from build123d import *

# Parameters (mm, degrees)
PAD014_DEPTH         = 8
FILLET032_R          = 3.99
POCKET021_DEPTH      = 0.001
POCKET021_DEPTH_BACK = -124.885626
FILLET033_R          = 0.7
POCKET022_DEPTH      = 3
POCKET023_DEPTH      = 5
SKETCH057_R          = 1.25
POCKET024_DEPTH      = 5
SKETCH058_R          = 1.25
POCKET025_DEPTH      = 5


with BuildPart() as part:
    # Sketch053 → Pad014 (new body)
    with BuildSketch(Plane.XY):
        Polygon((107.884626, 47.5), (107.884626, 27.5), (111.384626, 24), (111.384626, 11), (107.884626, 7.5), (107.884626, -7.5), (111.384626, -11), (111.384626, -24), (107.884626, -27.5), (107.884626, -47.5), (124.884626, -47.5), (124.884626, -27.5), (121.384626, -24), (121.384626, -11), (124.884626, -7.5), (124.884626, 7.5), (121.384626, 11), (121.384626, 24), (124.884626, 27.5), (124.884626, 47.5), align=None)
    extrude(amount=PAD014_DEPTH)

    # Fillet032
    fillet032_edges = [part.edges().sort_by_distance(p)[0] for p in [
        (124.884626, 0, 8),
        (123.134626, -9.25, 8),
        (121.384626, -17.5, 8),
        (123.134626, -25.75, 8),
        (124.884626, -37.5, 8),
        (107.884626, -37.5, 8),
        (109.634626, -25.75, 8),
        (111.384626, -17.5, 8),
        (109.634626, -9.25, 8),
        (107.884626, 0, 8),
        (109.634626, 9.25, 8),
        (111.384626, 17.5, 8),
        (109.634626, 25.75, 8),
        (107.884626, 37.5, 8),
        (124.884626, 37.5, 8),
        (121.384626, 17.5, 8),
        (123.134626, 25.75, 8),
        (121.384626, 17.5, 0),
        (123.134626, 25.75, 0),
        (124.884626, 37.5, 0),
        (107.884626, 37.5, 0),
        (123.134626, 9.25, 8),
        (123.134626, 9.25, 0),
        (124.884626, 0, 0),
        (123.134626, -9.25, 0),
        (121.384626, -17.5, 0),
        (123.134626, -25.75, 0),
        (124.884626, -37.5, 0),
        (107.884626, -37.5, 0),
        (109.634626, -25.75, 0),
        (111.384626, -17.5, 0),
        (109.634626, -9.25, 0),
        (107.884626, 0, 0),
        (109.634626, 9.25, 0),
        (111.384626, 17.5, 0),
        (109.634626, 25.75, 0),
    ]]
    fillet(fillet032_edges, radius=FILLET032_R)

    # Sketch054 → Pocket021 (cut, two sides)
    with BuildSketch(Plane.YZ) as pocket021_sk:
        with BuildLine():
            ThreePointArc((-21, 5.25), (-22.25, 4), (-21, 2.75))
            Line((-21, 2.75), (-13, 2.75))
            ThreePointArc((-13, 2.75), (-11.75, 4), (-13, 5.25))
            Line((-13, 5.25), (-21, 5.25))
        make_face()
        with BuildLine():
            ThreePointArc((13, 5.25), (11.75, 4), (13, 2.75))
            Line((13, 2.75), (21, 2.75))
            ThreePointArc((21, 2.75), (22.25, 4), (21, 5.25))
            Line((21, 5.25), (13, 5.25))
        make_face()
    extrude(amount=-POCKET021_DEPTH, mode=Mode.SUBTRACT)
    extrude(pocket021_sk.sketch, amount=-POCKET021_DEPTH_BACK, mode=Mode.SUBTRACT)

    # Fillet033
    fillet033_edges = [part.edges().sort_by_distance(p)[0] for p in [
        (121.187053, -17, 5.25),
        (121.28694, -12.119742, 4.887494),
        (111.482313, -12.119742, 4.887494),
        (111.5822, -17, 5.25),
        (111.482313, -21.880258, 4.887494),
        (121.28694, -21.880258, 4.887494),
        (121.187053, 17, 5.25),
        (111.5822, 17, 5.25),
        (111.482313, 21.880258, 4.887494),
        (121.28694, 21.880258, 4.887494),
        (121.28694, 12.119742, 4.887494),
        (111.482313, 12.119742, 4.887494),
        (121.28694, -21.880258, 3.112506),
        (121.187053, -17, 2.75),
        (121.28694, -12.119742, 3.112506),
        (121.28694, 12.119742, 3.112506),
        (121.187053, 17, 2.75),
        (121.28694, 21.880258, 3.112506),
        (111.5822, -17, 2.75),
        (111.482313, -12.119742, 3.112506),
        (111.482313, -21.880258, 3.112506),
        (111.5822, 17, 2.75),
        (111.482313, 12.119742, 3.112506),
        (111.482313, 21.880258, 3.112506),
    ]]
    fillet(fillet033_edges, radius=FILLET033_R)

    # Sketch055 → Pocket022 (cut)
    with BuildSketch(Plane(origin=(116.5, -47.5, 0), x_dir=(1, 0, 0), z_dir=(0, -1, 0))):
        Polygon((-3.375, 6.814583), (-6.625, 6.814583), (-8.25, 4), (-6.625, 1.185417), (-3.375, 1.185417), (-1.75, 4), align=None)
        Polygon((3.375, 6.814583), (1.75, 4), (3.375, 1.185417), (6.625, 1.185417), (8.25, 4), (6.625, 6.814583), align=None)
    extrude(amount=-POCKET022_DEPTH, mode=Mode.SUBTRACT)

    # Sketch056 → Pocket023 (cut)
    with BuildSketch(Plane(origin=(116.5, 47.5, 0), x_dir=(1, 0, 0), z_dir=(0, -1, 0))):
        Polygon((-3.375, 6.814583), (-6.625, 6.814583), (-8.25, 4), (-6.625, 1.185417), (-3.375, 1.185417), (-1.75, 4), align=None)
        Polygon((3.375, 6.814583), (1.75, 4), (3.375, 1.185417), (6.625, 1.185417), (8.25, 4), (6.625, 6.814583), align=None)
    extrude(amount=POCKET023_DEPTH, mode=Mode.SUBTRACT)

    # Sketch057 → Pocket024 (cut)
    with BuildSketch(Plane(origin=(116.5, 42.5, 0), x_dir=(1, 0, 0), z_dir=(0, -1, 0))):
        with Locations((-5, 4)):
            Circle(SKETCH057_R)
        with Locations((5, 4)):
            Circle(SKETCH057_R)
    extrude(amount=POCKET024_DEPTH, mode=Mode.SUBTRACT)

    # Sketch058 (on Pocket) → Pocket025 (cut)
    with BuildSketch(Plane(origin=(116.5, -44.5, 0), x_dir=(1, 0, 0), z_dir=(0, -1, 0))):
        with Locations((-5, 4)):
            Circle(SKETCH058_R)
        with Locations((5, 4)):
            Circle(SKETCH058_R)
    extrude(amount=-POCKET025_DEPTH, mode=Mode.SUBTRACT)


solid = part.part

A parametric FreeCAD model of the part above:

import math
import FreeCAD as App
import Part
import Sketcher

V = App.Vector
Q = App.Units.Quantity


def edges_at(feature, points):
    """Names of the edges that pass closest to the given points."""
    edges = feature.Shape.Edges
    near = lambda p: min(range(len(edges)), key=lambda i: edges[i].distToShape(Part.Vertex(*p))[0])
    return sorted({f"Edge{near(p) + 1}" for p in points})


def add_polygon(sketch, points):
    """Adds a closed chain of lines whose ends are joined by coincident constraints."""
    first, n = sketch.GeometryCount, len(points)
    for a, b in zip(points, points[1:] + points[:1]):
        sketch.addGeometry(Part.LineSegment(App.Vector(*a, 0), App.Vector(*b, 0)), False)
    for i in range(n):
        sketch.addConstraint(Sketcher.Constraint("Coincident", first + i, 2, first + (i + 1) % n, 1))

doc = App.newDocument("Part")
body = doc.addObject("PartDesign::Body", "Body")

sketch1 = body.newObject("Sketcher::SketchObject", "Sketch")
sketch1.AttachmentSupport = (doc.getObject("XY_Plane"), [""])
sketch1.MapMode = "FlatFace"
add_polygon(sketch1, [(107.9, 47.5), (107.9, 27.5), (111.4, 24), (111.4, 11), (107.9, 7.5), (107.9, -7.5), (111.4, -11), (111.4, -24), (107.9, -27.5), (107.9, -47.5), (124.9, -47.5), (124.9, -27.5), (121.4, -24), (121.4, -11), (124.9, -7.5), (124.9, 7.5), (121.4, 11), (121.4, 24), (124.9, 27.5), (124.9, 47.5)])
sketch1.addConstraint(Sketcher.Constraint("Vertical", 0))
sketch1.addConstraint(Sketcher.Constraint("Vertical", 2))
sketch1.addConstraint(Sketcher.Constraint("Vertical", 4))
sketch1.addConstraint(Sketcher.Constraint("Vertical", 6))
sketch1.addConstraint(Sketcher.Constraint("Vertical", 8))
sketch1.addConstraint(Sketcher.Constraint("Horizontal", 9))
sketch1.addConstraint(Sketcher.Constraint("Vertical", 10))
sketch1.addConstraint(Sketcher.Constraint("Vertical", 12))
sketch1.addConstraint(Sketcher.Constraint("Vertical", 14))
sketch1.addConstraint(Sketcher.Constraint("Vertical", 16))
sketch1.addConstraint(Sketcher.Constraint("Vertical", 18))
sketch1.addConstraint(Sketcher.Constraint("Horizontal", 19))
sketch1.addConstraint(Sketcher.Constraint("Symmetric", 2, 2, 5, 2, -1))
sketch1.addConstraint(Sketcher.Constraint("Symmetric", 0, 2, 7, 2, -1))
sketch1.addConstraint(Sketcher.Constraint("Symmetric", 12, 2, 15, 2, -1))
sketch1.addConstraint(Sketcher.Constraint("Symmetric", 10, 2, 17, 2, -1))
sketch1.addConstraint(Sketcher.Constraint("Perpendicular", 1, 3))
sketch1.addConstraint(Sketcher.Constraint("Perpendicular", 3, 5))
sketch1.addConstraint(Sketcher.Constraint("Perpendicular", 5, 7))
sketch1.addConstraint(Sketcher.Constraint("Perpendicular", 7, 11))
sketch1.addConstraint(Sketcher.Constraint("Perpendicular", 11, 13))
sketch1.addConstraint(Sketcher.Constraint("Perpendicular", 13, 15))
sketch1.addConstraint(Sketcher.Constraint("Perpendicular", 15, 17))
sketch1.addConstraint(Sketcher.Constraint("Horizontal", 7, 2, 10, 2))
sketch1.addConstraint(Sketcher.Constraint("Horizontal", 6, 2, 11, 2))
sketch1.addConstraint(Sketcher.Constraint("Horizontal", 5, 2, 12, 2))
sketch1.addConstraint(Sketcher.Constraint("Horizontal", 4, 2, 13, 2))
sketch1.addConstraint(Sketcher.Constraint("Horizontal", 3, 2, 14, 2))
sketch1.addConstraint(Sketcher.Constraint("Vertical", 0, 2, 3, 2))
sketch1.addConstraint(Sketcher.Constraint("Equal", 0, 8))
sketch1.addConstraint(Sketcher.Constraint("DistanceX", 9, 1, 9, 2, 17.0))
sketch1.addConstraint(Sketcher.Constraint("DistanceY", 0, 2, 0, 1, 20.0))
sketch1.addConstraint(Sketcher.Constraint("DistanceY", 2, 2, 2, 1, 13.0))
sketch1.addConstraint(Sketcher.Constraint("DistanceY", 4, 2, 4, 1, 15.0))
sketch1.addConstraint(Sketcher.Constraint("DistanceY", -1, 1, 1, 2, 24.0))
sketch1.addConstraint(Sketcher.Constraint("DistanceX", -1, 1, 0, 2, 107.884626))
pad1 = body.newObject("PartDesign::Pad", "Pad")
pad1.Profile = sketch1
pad1.Length = 8
doc.recompute()

fillet = body.newObject("PartDesign::Fillet", "Fillet")
fillet.Base = (pad1, edges_at(pad1, [
    (124.885, 0, 8),
    (123.135, -9.25, 8),
    (121.385, -17.5, 8),
    (123.135, -25.75, 8),
    (124.885, -37.5, 8),
    (107.885, -37.5, 8),
    (109.635, -25.75, 8),
    (111.385, -17.5, 8),
    (109.635, -9.25, 8),
    (107.885, 0, 8),
    (109.635, 9.25, 8),
    (111.385, 17.5, 8),
    (109.635, 25.75, 8),
    (107.885, 37.5, 8),
    (124.885, 37.5, 8),
    (121.385, 17.5, 8),
    (123.135, 25.75, 8),
    (121.385, 17.5, 0),
    (123.135, 25.75, 0),
    (124.885, 37.5, 0),
    (107.885, 37.5, 0),
    (123.135, 9.25, 8),
    (123.135, 9.25, 0),
    (124.885, 0, 0),
    (123.135, -9.25, 0),
    (121.385, -17.5, 0),
    (123.135, -25.75, 0),
    (124.885, -37.5, 0),
    (107.885, -37.5, 0),
    (109.635, -25.75, 0),
    (111.385, -17.5, 0),
    (109.635, -9.25, 0),
    (107.885, 0, 0),
    (109.635, 9.25, 0),
    (111.385, 17.5, 0),
    (109.635, 25.75, 0),
]))
fillet.Radius = 3.99

sketch2 = body.newObject("Sketcher::SketchObject", "Sketch001")
sketch2.AttachmentSupport = (doc.getObject("YZ_Plane"), [""])
sketch2.MapMode = "FlatFace"
sketch2.addGeometry(Part.ArcOfCircle(Part.Circle(V(-21, 4, 0), V(0, 0, 1), 1.2), math.radians(90), math.radians(270)), False)
sketch2.addGeometry(Part.LineSegment(V(-21, 2.8, 0), V(-13, 2.8, 0)), False)
sketch2.addGeometry(Part.ArcOfCircle(Part.Circle(V(-13, 4, 0), V(0, 0, 1), 1.2), math.radians(-90), math.radians(90)), False)
sketch2.addGeometry(Part.LineSegment(V(-13, 5.2, 0), V(-21, 5.2, 0)), False)
sketch2.addGeometry(Part.ArcOfCircle(Part.Circle(V(13, 4, 0), V(0, 0, 1), 1.2), math.radians(90), math.radians(270)), False)
sketch2.addGeometry(Part.LineSegment(V(13, 2.8, 0), V(21, 2.8, 0)), False)
sketch2.addGeometry(Part.ArcOfCircle(Part.Circle(V(21, 4, 0), V(0, 0, 1), 1.2), math.radians(-90), math.radians(90)), False)
sketch2.addGeometry(Part.LineSegment(V(21, 5.2, 0), V(13, 5.2, 0)), False)
sketch2.addConstraint(Sketcher.Constraint("Tangent", 0, 2, 1, 1))
sketch2.addConstraint(Sketcher.Constraint("Tangent", 1, 2, 2, 1))
sketch2.addConstraint(Sketcher.Constraint("Tangent", 2, 2, 3, 1))
sketch2.addConstraint(Sketcher.Constraint("Tangent", 3, 2, 0, 1))
sketch2.addConstraint(Sketcher.Constraint("Tangent", 4, 2, 5, 1))
sketch2.addConstraint(Sketcher.Constraint("Tangent", 5, 2, 6, 1))
sketch2.addConstraint(Sketcher.Constraint("Tangent", 6, 2, 7, 1))
sketch2.addConstraint(Sketcher.Constraint("Tangent", 7, 2, 4, 1))
sketch2.addConstraint(Sketcher.Constraint("Horizontal", 1))
sketch2.addConstraint(Sketcher.Constraint("Horizontal", 3))
sketch2.addConstraint(Sketcher.Constraint("Horizontal", 5))
sketch2.addConstraint(Sketcher.Constraint("Horizontal", 7))
sketch2.addConstraint(Sketcher.Constraint("Equal", 2, 4))
sketch2.addConstraint(Sketcher.Constraint("Symmetric", 2, 3, 4, 3, -2))
sketch2.addConstraint(Sketcher.Constraint("Equal", 3, 5))
sketch2.addConstraint(Sketcher.Constraint("DistanceX", 1, 1, 1, 2, 8.0))
sketch2.addConstraint(Sketcher.Constraint("Radius", 0, 1.25))
sketch2.addConstraint(Sketcher.Constraint("DistanceX", 0, 3, -1, 1, 21.0))
sketch2.addConstraint(Sketcher.Constraint("DistanceY", -1, 1, 0, 3, 4.0))
pocket1 = body.newObject("PartDesign::Pocket", "Pocket")
pocket1.Profile = sketch2
pocket1.Type = "ThroughAll"
pocket1.Midplane = True
doc.recompute()

fillet2 = body.newObject("PartDesign::Fillet", "Fillet001")
fillet2.Base = (pocket1, edges_at(pocket1, [
    (121.187, -17, 5.25),
    (121.287, -12.12, 4.887),
    (111.482, -12.12, 4.887),
    (111.582, -17, 5.25),
    (111.482, -21.88, 4.887),
    (121.287, -21.88, 4.887),
    (121.187, 17, 5.25),
    (111.582, 17, 5.25),
    (111.482, 21.88, 4.887),
    (121.287, 21.88, 4.887),
    (121.287, 12.12, 4.887),
    (111.482, 12.12, 4.887),
    (121.287, -21.88, 3.113),
    (121.187, -17, 2.75),
    (121.287, -12.12, 3.113),
    (121.287, 12.12, 3.113),
    (121.187, 17, 2.75),
    (121.287, 21.88, 3.113),
    (111.582, -17, 2.75),
    (111.482, -12.12, 3.113),
    (111.482, -21.88, 3.113),
    (111.582, 17, 2.75),
    (111.482, 12.12, 3.113),
    (111.482, 21.88, 3.113),
]))
fillet2.Radius = 0.7

sketch3 = body.newObject("Sketcher::SketchObject", "Sketch002")
sketch3.AttachmentSupport = (doc.getObject("XZ_Plane"), [""])
sketch3.MapMode = "FlatFace"
sketch3.AttachmentOffset = App.Placement(V(0, 0, 47.5), App.Rotation())
add_polygon(sketch3, [(113.1, 6.8), (109.9, 6.8), (108.2, 4), (109.9, 1.2), (113.1, 1.2), (114.8, 4)])
add_polygon(sketch3, [(119.9, 6.8), (118.2, 4), (119.9, 1.2), (123.1, 1.2), (124.8, 4), (123.1, 6.8)])
sketch3.addConstraint(Sketcher.Constraint("Horizontal", 0))
sketch3.addConstraint(Sketcher.Constraint("Horizontal", 3))
sketch3.addConstraint(Sketcher.Constraint("Horizontal", 8))
sketch3.addConstraint(Sketcher.Constraint("Horizontal", 11))
sketch3.addConstraint(Sketcher.Constraint("Parallel", 1, 4))
sketch3.addConstraint(Sketcher.Constraint("Parallel", 2, 5))
sketch3.addConstraint(Sketcher.Constraint("Parallel", 4, 6))
sketch3.addConstraint(Sketcher.Constraint("Parallel", 5, 7))
sketch3.addConstraint(Sketcher.Constraint("Parallel", 6, 9))
sketch3.addConstraint(Sketcher.Constraint("Parallel", 7, 10))
sketch3.addConstraint(Sketcher.Constraint("Horizontal", 1, 2, 4, 2))
sketch3.addConstraint(Sketcher.Constraint("Horizontal", 4, 2, 6, 2))
sketch3.addConstraint(Sketcher.Constraint("Horizontal", 3, 2, 7, 2))
sketch3.addConstraint(Sketcher.Constraint("Horizontal", 6, 2, 9, 2))
sketch3.addConstraint(Sketcher.Constraint("Horizontal", 5, 2, 10, 2))
sketch3.addConstraint(Sketcher.Constraint("Vertical", 0, 2, 2, 2))
sketch3.addConstraint(Sketcher.Constraint("Vertical", 3, 2, 5, 2))
sketch3.addConstraint(Sketcher.Constraint("Equal", 3, 8))
sketch3.addConstraint(Sketcher.Constraint("Angle", 1, Q("-119.999996 deg")))
sketch3.addConstraint(Sketcher.Constraint("DistanceY", -1, 1, 1, 2, 4.0))
sketch3.addConstraint(Sketcher.Constraint("DistanceX", 2, 2, 7, 2, 10.0))
sketch3.addConstraint(Sketcher.Constraint("DistanceX", 0, 2, 0, 1, 3.25))
sketch3.addConstraint(Sketcher.Constraint("DistanceX", 1, 2, 4, 2, 6.5))
sketch3.addConstraint(Sketcher.Constraint("DistanceX", -1, 1, 1, 2, 108.25))
pocket2 = body.newObject("PartDesign::Pocket", "Pocket001")
pocket2.Profile = sketch3
pocket2.Length = 3

sketch4 = body.newObject("Sketcher::SketchObject", "Sketch003")
sketch4.AttachmentSupport = (doc.getObject("XZ_Plane"), [""])
sketch4.MapMode = "FlatFace"
sketch4.AttachmentOffset = App.Placement(V(0, 0, -47.5), App.Rotation())
add_polygon(sketch4, [(113.1, 6.8), (109.9, 6.8), (108.2, 4), (109.9, 1.2), (113.1, 1.2), (114.8, 4)])
add_polygon(sketch4, [(119.9, 6.8), (118.2, 4), (119.9, 1.2), (123.1, 1.2), (124.8, 4), (123.1, 6.8)])
sketch4.addConstraint(Sketcher.Constraint("Horizontal", 0))
sketch4.addConstraint(Sketcher.Constraint("Horizontal", 3))
sketch4.addConstraint(Sketcher.Constraint("Horizontal", 8))
sketch4.addConstraint(Sketcher.Constraint("Horizontal", 11))
sketch4.addConstraint(Sketcher.Constraint("Parallel", 1, 4))
sketch4.addConstraint(Sketcher.Constraint("Parallel", 2, 5))
sketch4.addConstraint(Sketcher.Constraint("Parallel", 4, 6))
sketch4.addConstraint(Sketcher.Constraint("Parallel", 5, 7))
sketch4.addConstraint(Sketcher.Constraint("Parallel", 6, 9))
sketch4.addConstraint(Sketcher.Constraint("Parallel", 7, 10))
sketch4.addConstraint(Sketcher.Constraint("Horizontal", 1, 2, 4, 2))
sketch4.addConstraint(Sketcher.Constraint("Horizontal", 4, 2, 6, 2))
sketch4.addConstraint(Sketcher.Constraint("Horizontal", 3, 2, 7, 2))
sketch4.addConstraint(Sketcher.Constraint("Horizontal", 6, 2, 9, 2))
sketch4.addConstraint(Sketcher.Constraint("Horizontal", 5, 2, 10, 2))
sketch4.addConstraint(Sketcher.Constraint("Vertical", 0, 2, 2, 2))
sketch4.addConstraint(Sketcher.Constraint("Vertical", 3, 2, 5, 2))
sketch4.addConstraint(Sketcher.Constraint("Equal", 3, 8))
sketch4.addConstraint(Sketcher.Constraint("Angle", 1, Q("-119.999996 deg")))
sketch4.addConstraint(Sketcher.Constraint("DistanceY", -1, 1, 1, 2, 4.0))
sketch4.addConstraint(Sketcher.Constraint("DistanceX", 2, 2, 7, 2, 10.0))
sketch4.addConstraint(Sketcher.Constraint("DistanceX", 0, 2, 0, 1, 3.25))
sketch4.addConstraint(Sketcher.Constraint("DistanceX", 1, 2, 4, 2, 6.5))
sketch4.addConstraint(Sketcher.Constraint("DistanceX", -1, 1, 1, 2, 108.25))
pocket3 = body.newObject("PartDesign::Pocket", "Pocket002")
pocket3.Profile = sketch4
pocket3.Length = 5
pocket3.Reversed = True

sketch5 = body.newObject("Sketcher::SketchObject", "Sketch004")
sketch5.AttachmentSupport = (doc.getObject("XZ_Plane"), [""])
sketch5.MapMode = "FlatFace"
sketch5.AttachmentOffset = App.Placement(V(0, 0, -42.5), App.Rotation())
sketch5.addGeometry(Part.Circle(V(111.5, 4, 0), V(0, 0, 1), 1.2), False)
sketch5.addGeometry(Part.Circle(V(121.5, 4, 0), V(0, 0, 1), 1.2), False)
sketch5.addConstraint(Sketcher.Constraint("Equal", 0, 1))
sketch5.addConstraint(Sketcher.Constraint("Horizontal", 0, 3, 1, 3))
sketch5.addConstraint(Sketcher.Constraint("Diameter", 0, 2.5))
sketch5.addConstraint(Sketcher.Constraint("DistanceY", -1, 1, 0, 3, 4.0))
sketch5.addConstraint(Sketcher.Constraint("DistanceX", 0, 3, 1, 3, 10.0))
sketch5.addConstraint(Sketcher.Constraint("DistanceX", -1, 1, 0, 3, 111.5))
pocket4 = body.newObject("PartDesign::Pocket", "Pocket003")
pocket4.Profile = sketch5
pocket4.Length = 5
pocket4.Reversed = True

sketch6 = body.newObject("Sketcher::SketchObject", "Sketch005")
sketch6.AttachmentSupport = (doc.getObject("XZ_Plane"), [""])
sketch6.MapMode = "FlatFace"
sketch6.AttachmentOffset = App.Placement(V(0, 0, 44.5), App.Rotation())
sketch6.addGeometry(Part.Circle(V(111.5, 4, 0), V(0, 0, 1), 1.2), False)
sketch6.addGeometry(Part.Circle(V(121.5, 4, 0), V(0, 0, 1), 1.2), False)
sketch6.addConstraint(Sketcher.Constraint("Equal", 0, 1))
sketch6.addConstraint(Sketcher.Constraint("Horizontal", 0, 3, 1, 3))
sketch6.addConstraint(Sketcher.Constraint("Diameter", 0, 2.5))
sketch6.addConstraint(Sketcher.Constraint("DistanceY", -1, 1, 0, 3, 4.0))
sketch6.addConstraint(Sketcher.Constraint("DistanceX", 0, 3, 1, 3, 10.0))
sketch6.addConstraint(Sketcher.Constraint("DistanceX", -1, 1, 0, 3, 111.5))
pocket5 = body.newObject("PartDesign::Pocket", "Pocket004")
pocket5.Profile = sketch6
pocket5.Length = 5

doc.recompute()
